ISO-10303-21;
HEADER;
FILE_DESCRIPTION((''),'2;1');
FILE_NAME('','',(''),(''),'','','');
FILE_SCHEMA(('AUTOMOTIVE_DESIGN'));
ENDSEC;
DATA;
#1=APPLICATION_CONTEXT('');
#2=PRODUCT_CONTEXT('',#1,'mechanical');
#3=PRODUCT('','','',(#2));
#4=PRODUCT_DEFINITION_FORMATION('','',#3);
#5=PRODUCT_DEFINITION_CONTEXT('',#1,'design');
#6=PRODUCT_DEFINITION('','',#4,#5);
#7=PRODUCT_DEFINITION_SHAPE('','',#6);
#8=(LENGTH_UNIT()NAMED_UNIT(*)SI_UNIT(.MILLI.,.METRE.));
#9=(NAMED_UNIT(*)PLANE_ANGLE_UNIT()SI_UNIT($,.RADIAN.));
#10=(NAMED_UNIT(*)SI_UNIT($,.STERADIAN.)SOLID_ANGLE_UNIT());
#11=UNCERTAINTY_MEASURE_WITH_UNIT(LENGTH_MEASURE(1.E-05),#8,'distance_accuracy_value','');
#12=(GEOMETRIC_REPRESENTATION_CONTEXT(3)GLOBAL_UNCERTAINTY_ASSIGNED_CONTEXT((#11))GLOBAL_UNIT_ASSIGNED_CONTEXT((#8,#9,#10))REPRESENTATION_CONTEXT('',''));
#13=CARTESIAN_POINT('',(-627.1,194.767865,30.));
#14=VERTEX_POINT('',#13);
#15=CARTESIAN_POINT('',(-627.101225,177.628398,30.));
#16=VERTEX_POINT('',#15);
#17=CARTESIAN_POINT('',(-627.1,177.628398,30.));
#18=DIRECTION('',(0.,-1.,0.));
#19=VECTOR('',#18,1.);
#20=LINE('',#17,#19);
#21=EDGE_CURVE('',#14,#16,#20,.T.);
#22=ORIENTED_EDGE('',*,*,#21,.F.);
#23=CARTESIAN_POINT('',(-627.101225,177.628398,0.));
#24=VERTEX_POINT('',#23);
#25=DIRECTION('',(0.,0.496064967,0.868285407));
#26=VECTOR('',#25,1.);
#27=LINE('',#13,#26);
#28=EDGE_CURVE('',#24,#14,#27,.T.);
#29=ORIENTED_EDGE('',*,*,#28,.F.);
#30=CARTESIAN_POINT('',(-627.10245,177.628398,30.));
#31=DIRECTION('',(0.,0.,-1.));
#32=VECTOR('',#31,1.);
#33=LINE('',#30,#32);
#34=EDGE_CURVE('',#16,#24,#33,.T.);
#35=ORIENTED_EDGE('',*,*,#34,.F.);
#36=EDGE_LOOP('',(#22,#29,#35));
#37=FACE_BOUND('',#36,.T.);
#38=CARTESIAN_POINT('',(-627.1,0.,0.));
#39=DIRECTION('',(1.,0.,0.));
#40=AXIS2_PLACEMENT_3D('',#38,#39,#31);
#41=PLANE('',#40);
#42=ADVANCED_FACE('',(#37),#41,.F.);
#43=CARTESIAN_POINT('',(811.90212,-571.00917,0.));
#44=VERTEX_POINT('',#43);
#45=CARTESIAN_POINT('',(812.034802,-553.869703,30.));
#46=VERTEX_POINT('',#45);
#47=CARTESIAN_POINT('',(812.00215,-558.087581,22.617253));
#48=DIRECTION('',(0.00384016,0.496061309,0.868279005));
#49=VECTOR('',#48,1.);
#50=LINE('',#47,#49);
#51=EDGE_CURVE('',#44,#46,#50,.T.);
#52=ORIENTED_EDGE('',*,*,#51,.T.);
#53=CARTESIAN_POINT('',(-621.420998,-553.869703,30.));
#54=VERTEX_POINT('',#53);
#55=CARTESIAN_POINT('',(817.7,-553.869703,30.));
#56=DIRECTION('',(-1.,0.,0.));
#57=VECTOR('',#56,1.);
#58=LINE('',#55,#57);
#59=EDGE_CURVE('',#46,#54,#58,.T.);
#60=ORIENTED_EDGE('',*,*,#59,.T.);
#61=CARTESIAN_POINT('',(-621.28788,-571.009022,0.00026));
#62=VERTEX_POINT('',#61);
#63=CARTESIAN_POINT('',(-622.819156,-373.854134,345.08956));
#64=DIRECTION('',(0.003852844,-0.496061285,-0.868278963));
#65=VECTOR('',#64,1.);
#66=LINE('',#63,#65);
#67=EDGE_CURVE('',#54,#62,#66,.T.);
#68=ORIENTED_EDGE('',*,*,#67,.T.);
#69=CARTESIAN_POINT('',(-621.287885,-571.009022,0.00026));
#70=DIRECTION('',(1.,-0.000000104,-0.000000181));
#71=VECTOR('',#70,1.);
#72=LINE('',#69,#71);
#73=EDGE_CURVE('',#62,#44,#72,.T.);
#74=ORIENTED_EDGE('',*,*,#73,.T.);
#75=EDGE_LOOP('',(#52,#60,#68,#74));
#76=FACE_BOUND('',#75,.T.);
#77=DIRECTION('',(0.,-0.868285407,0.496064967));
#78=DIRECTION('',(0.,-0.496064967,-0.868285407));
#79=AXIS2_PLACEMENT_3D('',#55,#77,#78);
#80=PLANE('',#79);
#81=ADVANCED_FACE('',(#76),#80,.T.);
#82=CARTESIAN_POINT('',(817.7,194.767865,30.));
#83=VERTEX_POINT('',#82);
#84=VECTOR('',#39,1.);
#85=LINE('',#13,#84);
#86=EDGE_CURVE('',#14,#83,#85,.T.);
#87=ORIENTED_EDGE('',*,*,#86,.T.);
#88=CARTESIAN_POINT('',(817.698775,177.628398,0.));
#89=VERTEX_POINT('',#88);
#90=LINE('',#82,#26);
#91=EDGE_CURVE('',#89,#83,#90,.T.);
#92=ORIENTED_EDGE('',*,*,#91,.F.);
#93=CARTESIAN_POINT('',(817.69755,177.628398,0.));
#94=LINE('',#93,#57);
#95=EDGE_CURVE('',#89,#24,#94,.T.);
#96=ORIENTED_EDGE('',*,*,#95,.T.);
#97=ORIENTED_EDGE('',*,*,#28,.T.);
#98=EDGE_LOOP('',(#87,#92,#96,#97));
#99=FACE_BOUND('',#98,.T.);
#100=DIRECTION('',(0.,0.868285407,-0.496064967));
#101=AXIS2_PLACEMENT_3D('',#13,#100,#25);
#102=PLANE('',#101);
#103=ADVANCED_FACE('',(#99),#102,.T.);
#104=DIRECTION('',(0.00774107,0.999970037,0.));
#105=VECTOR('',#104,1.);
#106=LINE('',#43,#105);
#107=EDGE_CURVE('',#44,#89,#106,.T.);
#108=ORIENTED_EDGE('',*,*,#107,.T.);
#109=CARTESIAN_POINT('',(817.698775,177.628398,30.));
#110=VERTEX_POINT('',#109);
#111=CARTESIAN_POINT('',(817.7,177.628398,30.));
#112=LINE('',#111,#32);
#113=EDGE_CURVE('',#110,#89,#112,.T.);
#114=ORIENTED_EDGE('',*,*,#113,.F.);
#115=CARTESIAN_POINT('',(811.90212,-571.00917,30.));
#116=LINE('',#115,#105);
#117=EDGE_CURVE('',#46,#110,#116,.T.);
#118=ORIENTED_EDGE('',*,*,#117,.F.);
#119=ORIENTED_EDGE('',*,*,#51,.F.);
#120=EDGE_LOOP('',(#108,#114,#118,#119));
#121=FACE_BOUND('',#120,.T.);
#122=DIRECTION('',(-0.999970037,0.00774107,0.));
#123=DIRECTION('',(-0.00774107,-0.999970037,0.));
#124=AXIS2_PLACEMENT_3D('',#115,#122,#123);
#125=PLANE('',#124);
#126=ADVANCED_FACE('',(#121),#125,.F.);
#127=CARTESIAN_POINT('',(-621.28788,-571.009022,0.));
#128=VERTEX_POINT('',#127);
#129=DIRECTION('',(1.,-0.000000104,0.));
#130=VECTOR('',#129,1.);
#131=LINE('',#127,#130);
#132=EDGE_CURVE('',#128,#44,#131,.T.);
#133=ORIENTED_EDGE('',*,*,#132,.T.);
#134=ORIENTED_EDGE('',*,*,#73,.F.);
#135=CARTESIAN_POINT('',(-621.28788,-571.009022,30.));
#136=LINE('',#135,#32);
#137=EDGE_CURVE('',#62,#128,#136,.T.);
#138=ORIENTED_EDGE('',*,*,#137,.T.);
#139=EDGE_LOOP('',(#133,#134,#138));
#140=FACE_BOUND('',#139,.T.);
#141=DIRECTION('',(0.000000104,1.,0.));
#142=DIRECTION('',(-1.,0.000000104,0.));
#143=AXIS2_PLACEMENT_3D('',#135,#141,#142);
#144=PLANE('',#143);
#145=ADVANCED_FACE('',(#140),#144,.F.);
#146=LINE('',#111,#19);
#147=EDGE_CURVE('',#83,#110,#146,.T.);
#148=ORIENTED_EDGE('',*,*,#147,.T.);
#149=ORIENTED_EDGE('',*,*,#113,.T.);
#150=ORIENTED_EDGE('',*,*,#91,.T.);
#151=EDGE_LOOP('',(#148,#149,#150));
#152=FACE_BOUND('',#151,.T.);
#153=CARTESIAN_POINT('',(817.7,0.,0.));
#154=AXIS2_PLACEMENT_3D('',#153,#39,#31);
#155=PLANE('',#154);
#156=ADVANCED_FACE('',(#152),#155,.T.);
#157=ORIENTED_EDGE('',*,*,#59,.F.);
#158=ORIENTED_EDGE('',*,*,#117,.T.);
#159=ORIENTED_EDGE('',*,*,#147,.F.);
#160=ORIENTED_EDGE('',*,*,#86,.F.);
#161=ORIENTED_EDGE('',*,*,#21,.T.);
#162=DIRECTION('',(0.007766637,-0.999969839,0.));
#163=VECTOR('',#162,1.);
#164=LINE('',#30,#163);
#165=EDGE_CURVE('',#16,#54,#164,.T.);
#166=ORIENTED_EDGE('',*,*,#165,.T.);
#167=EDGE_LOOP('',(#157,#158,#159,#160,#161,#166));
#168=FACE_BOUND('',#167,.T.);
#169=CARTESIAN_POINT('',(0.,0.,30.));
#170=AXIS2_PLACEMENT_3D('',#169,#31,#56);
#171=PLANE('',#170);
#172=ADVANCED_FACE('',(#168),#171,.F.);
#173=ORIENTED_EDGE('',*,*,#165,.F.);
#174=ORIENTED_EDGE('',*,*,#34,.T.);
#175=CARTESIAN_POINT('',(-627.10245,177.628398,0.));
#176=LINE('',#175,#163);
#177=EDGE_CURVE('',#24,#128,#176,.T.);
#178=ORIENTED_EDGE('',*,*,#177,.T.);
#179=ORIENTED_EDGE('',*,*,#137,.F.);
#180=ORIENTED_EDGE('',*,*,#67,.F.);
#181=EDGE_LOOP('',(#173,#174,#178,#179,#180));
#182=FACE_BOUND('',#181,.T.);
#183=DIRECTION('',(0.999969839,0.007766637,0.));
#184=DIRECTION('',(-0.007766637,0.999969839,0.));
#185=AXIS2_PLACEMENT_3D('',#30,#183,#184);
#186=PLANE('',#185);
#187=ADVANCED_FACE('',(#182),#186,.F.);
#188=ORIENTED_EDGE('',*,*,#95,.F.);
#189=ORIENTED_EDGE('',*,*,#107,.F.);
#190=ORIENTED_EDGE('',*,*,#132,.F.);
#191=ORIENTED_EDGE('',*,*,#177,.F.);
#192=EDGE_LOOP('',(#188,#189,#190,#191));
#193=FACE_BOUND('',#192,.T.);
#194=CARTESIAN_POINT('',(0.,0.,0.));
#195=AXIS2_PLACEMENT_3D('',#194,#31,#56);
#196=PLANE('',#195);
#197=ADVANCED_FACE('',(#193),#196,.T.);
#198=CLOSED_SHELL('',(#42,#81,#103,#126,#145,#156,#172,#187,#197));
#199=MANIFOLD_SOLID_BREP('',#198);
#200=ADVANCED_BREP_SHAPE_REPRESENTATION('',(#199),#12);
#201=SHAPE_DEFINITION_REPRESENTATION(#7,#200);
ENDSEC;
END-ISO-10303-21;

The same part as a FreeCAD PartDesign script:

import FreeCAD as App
import Part
import Sketcher

V = App.Vector
Q = App.Units.Quantity


def add_polygon(sketch, points):
    """Adds a closed chain of lines whose ends are joined by coincident constraints."""
    first, n = sketch.GeometryCount, len(points)
    for a, b in zip(points, points[1:] + points[:1]):
        sketch.addGeometry(Part.LineSegment(App.Vector(*a, 0), App.Vector(*b, 0)), False)
    for i in range(n):
        sketch.addConstraint(Sketcher.Constraint("Coincident", first + i, 2, first + (i + 1) % n, 1))

doc = App.newDocument("Part")
body = doc.addObject("PartDesign::Body", "Body")

sketch1 = doc.addObject("Sketcher::SketchObject", "Sketch")
body.addObject(sketch1)
sketch1.AttachmentSupport = (doc.XY_Plane, [""])
sketch1.MapMode = "FlatFace"
add_polygon(sketch1, [(-627.10245, 177.628398), (-621.28788, -571.009022), (811.90212, -571.00917), (817.69755, 177.628398)])
sketch1.addConstraint([
    Sketcher.Constraint("Horizontal", 3),
    Sketcher.Constraint("DistanceX", 3, 2, 3, 1, Q("1444.8 mm")),
    Sketcher.Constraint("Distance", 0, Q("748.66 mm")),
    Sketcher.Constraint("Distance", 1, Q("1433.19 mm")),
    Sketcher.Constraint("Distance", 2, Q("748.66 mm")),
    Sketcher.Constraint("DistanceY", -1, 1, 2, 2, Q("177.628398 mm")),
    Sketcher.Constraint("DistanceX", 0, 2, -1, 1, Q("621.28788 mm")),
    Sketcher.Constraint("DistanceY", 0, 2, -1, 1, Q("571.009022 mm")),
])
pad1 = doc.addObject("PartDesign::Pad", "Pad")
body.addObject(pad1)
pad1.Profile = sketch1
pad1.Length = 30

sketch2 = doc.addObject("Sketcher::SketchObject", "Sketch001")
body.addObject(sketch2)
sketch2.AttachmentSupport = (doc.YZ_Plane, [""])
sketch2.MapMode = "FlatFace"
add_polygon(sketch2, [(177.628398, 30), (177.628398, 0), (194.767865, 30)])
sketch2.addConstraint([
    Sketcher.Constraint("Vertical", 0),
    Sketcher.Constraint("Horizontal", 2),
    Sketcher.Constraint("PointOnObject", 0, 2, -1),
    Sketcher.Constraint("DistanceY", 0, 2, 0, 1, Q("30 mm")),
    Sketcher.Constraint("Angle", 1, Q("60.26 deg")),
    Sketcher.Constraint("DistanceX", -1, 1, 0, 2, Q("177.628398 mm")),
])
pad2 = doc.addObject("PartDesign::Pad", "Pad001")
body.addObject(pad2)
pad2.Profile = sketch2
pad2.Type = "TwoLengths"
pad2.Length = 817.7
pad2.Length2 = 627.1

sketch3 = doc.addObject("Sketcher::SketchObject", "Sketch002")
body.addObject(sketch3)
sketch3.AttachmentSupport = (doc.YZ_Plane, [""])
sketch3.MapMode = "FlatFace"
add_polygon(sketch3, [(-553.869703, 30), (-571.00917, 30), (-571.00917, 0)])
sketch3.addConstraint([
    Sketcher.Constraint("Horizontal", 0),
    Sketcher.Constraint("Vertical", 1),
    Sketcher.Constraint("PointOnObject", 1, 2, -1),
    Sketcher.Constraint("DistanceY", 1, 2, 1, 1, Q("30 mm")),
    Sketcher.Constraint("Angle", 2, Q("60.26 deg")),
    Sketcher.Constraint("DistanceX", 0, 2, -1, 1, Q("571.00917 mm")),
])
pocket1 = doc.addObject("PartDesign::Pocket", "Pocket")
body.addObject(pocket1)
pocket1.Profile = sketch3
pocket1.Type = "ThroughAll"
pocket1.Midplane = True

doc.recompute()
